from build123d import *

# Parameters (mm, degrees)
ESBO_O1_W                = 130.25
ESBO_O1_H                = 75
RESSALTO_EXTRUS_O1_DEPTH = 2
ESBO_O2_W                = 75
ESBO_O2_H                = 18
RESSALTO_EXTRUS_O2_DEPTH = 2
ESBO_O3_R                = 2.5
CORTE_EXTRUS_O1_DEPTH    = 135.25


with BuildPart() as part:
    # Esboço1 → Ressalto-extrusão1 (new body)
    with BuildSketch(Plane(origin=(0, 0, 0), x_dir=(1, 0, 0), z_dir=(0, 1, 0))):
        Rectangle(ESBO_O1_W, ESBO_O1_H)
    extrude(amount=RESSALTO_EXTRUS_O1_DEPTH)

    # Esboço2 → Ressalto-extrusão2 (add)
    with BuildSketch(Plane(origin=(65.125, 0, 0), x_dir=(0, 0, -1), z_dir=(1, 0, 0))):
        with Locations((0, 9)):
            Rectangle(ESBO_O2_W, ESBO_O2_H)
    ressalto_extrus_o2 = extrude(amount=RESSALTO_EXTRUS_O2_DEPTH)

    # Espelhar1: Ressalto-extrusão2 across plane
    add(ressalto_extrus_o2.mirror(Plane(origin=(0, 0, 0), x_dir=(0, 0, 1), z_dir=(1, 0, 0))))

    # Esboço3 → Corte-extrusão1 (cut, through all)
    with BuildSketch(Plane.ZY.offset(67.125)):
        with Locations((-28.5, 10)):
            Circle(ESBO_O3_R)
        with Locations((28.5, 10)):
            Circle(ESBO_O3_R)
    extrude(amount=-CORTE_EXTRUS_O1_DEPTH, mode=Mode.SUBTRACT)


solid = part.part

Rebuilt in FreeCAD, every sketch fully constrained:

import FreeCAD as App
import Part
import Sketcher

V = App.Vector
Q = App.Units.Quantity

doc = App.newDocument("Part")
body = doc.addObject("PartDesign::Body", "Body")

# Sketch on XZ plane
sketch1 = body.newObject("Sketcher::SketchObject", "Sketch")
sketch1.AttachmentSupport = (doc.getObject("XZ_Plane"), [""])
sketch1.MapMode = "FlatFace"
sketch1.addGeometry([
    Part.LineSegment(V(-65, -38, 0), V(-65, 38, 0)),
    Part.LineSegment(V(-65, 38, 0), V(65, 38, 0)),
    Part.LineSegment(V(65, 38, 0), V(65, -38, 0)),
    Part.LineSegment(V(65, -38, 0), V(-65, -38, 0)),
], False)
sketch1.addConstraint([
    Sketcher.Constraint("Coincident", 0, 2, 1, 1),
    Sketcher.Constraint("Coincident", 1, 2, 2, 1),
    Sketcher.Constraint("Coincident", 2, 2, 3, 1),
    Sketcher.Constraint("Coincident", 3, 2, 0, 1),
    Sketcher.Constraint("Vertical", 0),
    Sketcher.Constraint("Horizontal", 1),
    Sketcher.Constraint("Vertical", 2),
    Sketcher.Constraint("Horizontal", 3),
    Sketcher.Constraint("Symmetric", 0, 2, 2, 2, -1, 1),
    Sketcher.Constraint("DistanceY", 0, 1, 0, 2, Q("75 mm")),
    Sketcher.Constraint("DistanceX", 1, 1, 1, 2, Q("130.25 mm")),
])
pad1 = body.newObject("PartDesign::Pad", "Pad")
pad1.Profile = sketch1
pad1.Length = 2
pad1.Reversed = True

# Sketch on YZ plane
sketch2 = body.newObject("Sketcher::SketchObject", "Sketch001")
sketch2.AttachmentSupport = (doc.getObject("YZ_Plane"), [""])
sketch2.MapMode = "FlatFace"
sketch2.AttachmentOffset = App.Placement(V(0, 0, 65.125), App.Rotation())
sketch2.addGeometry([
    Part.LineSegment(V(18, 38, 0), V(0, 38, 0)),
    Part.LineSegment(V(0, 38, 0), V(0, -38, 0)),
    Part.LineSegment(V(0, -38, 0), V(18, -38, 0)),
    Part.LineSegment(V(18, -38, 0), V(18, 38, 0)),
], False)
sketch2.addConstraint([
    Sketcher.Constraint("Coincident", 0, 2, 1, 1),
    Sketcher.Constraint("Coincident", 1, 2, 2, 1),
    Sketcher.Constraint("Coincident", 2, 2, 3, 1),
    Sketcher.Constraint("Coincident", 3, 2, 0, 1),
    Sketcher.Constraint("Horizontal", 0),
    Sketcher.Constraint("Vertical", 1),
    Sketcher.Constraint("Horizontal", 2),
    Sketcher.Constraint("Vertical", 3),
    Sketcher.Constraint("Symmetric", 0, 2, 1, 2, -1, 1),
    Sketcher.Constraint("DistanceX", 0, 2, 0, 1, Q("18 mm")),
    Sketcher.Constraint("DistanceY", 1, 2, 1, 1, Q("75 mm")),
])
pad2 = body.newObject("PartDesign::Pad", "Pad001")
pad2.Profile = sketch2
pad2.Length = 2
doc.recompute()

mirrored = body.newObject("PartDesign::Mirrored", "Mirrored")
mirrored.Originals = [pad2]
mirrored.MirrorPlane = (doc.getObject("YZ_Plane"), [""])
body.Tip = mirrored

# Sketch on YZ plane
sketch3 = body.newObject("Sketcher::SketchObject", "Sketch002")
sketch3.AttachmentSupport = (doc.getObject("YZ_Plane"), [""])
sketch3.MapMode = "FlatFace"
sketch3.AttachmentOffset = App.Placement(V(0, 0, -67.125), App.Rotation())
sketch3.addGeometry([
    Part.Circle(V(10, -28.5, 0), V(0, 0, 1), 2.5),
    Part.Circle(V(10, 28.5, 0), V(0, 0, 1), 2.5),
], False)
sketch3.addConstraint([
    Sketcher.Constraint("Equal", 0, 1),
    Sketcher.Constraint("Symmetric", 0, 3, 1, 3, -1),
    Sketcher.Constraint("Diameter", 0, Q("5 mm")),
    Sketcher.Constraint("DistanceX", -1, 1, 0, 3, Q("10 mm")),
    Sketcher.Constraint("DistanceY", 0, 3, 1, 3, Q("57 mm")),
])
pocket1 = body.newObject("PartDesign::Pocket", "Pocket")
pocket1.Profile = sketch3
pocket1.Type = "ThroughAll"
pocket1.Reversed = True

doc.recompute()
